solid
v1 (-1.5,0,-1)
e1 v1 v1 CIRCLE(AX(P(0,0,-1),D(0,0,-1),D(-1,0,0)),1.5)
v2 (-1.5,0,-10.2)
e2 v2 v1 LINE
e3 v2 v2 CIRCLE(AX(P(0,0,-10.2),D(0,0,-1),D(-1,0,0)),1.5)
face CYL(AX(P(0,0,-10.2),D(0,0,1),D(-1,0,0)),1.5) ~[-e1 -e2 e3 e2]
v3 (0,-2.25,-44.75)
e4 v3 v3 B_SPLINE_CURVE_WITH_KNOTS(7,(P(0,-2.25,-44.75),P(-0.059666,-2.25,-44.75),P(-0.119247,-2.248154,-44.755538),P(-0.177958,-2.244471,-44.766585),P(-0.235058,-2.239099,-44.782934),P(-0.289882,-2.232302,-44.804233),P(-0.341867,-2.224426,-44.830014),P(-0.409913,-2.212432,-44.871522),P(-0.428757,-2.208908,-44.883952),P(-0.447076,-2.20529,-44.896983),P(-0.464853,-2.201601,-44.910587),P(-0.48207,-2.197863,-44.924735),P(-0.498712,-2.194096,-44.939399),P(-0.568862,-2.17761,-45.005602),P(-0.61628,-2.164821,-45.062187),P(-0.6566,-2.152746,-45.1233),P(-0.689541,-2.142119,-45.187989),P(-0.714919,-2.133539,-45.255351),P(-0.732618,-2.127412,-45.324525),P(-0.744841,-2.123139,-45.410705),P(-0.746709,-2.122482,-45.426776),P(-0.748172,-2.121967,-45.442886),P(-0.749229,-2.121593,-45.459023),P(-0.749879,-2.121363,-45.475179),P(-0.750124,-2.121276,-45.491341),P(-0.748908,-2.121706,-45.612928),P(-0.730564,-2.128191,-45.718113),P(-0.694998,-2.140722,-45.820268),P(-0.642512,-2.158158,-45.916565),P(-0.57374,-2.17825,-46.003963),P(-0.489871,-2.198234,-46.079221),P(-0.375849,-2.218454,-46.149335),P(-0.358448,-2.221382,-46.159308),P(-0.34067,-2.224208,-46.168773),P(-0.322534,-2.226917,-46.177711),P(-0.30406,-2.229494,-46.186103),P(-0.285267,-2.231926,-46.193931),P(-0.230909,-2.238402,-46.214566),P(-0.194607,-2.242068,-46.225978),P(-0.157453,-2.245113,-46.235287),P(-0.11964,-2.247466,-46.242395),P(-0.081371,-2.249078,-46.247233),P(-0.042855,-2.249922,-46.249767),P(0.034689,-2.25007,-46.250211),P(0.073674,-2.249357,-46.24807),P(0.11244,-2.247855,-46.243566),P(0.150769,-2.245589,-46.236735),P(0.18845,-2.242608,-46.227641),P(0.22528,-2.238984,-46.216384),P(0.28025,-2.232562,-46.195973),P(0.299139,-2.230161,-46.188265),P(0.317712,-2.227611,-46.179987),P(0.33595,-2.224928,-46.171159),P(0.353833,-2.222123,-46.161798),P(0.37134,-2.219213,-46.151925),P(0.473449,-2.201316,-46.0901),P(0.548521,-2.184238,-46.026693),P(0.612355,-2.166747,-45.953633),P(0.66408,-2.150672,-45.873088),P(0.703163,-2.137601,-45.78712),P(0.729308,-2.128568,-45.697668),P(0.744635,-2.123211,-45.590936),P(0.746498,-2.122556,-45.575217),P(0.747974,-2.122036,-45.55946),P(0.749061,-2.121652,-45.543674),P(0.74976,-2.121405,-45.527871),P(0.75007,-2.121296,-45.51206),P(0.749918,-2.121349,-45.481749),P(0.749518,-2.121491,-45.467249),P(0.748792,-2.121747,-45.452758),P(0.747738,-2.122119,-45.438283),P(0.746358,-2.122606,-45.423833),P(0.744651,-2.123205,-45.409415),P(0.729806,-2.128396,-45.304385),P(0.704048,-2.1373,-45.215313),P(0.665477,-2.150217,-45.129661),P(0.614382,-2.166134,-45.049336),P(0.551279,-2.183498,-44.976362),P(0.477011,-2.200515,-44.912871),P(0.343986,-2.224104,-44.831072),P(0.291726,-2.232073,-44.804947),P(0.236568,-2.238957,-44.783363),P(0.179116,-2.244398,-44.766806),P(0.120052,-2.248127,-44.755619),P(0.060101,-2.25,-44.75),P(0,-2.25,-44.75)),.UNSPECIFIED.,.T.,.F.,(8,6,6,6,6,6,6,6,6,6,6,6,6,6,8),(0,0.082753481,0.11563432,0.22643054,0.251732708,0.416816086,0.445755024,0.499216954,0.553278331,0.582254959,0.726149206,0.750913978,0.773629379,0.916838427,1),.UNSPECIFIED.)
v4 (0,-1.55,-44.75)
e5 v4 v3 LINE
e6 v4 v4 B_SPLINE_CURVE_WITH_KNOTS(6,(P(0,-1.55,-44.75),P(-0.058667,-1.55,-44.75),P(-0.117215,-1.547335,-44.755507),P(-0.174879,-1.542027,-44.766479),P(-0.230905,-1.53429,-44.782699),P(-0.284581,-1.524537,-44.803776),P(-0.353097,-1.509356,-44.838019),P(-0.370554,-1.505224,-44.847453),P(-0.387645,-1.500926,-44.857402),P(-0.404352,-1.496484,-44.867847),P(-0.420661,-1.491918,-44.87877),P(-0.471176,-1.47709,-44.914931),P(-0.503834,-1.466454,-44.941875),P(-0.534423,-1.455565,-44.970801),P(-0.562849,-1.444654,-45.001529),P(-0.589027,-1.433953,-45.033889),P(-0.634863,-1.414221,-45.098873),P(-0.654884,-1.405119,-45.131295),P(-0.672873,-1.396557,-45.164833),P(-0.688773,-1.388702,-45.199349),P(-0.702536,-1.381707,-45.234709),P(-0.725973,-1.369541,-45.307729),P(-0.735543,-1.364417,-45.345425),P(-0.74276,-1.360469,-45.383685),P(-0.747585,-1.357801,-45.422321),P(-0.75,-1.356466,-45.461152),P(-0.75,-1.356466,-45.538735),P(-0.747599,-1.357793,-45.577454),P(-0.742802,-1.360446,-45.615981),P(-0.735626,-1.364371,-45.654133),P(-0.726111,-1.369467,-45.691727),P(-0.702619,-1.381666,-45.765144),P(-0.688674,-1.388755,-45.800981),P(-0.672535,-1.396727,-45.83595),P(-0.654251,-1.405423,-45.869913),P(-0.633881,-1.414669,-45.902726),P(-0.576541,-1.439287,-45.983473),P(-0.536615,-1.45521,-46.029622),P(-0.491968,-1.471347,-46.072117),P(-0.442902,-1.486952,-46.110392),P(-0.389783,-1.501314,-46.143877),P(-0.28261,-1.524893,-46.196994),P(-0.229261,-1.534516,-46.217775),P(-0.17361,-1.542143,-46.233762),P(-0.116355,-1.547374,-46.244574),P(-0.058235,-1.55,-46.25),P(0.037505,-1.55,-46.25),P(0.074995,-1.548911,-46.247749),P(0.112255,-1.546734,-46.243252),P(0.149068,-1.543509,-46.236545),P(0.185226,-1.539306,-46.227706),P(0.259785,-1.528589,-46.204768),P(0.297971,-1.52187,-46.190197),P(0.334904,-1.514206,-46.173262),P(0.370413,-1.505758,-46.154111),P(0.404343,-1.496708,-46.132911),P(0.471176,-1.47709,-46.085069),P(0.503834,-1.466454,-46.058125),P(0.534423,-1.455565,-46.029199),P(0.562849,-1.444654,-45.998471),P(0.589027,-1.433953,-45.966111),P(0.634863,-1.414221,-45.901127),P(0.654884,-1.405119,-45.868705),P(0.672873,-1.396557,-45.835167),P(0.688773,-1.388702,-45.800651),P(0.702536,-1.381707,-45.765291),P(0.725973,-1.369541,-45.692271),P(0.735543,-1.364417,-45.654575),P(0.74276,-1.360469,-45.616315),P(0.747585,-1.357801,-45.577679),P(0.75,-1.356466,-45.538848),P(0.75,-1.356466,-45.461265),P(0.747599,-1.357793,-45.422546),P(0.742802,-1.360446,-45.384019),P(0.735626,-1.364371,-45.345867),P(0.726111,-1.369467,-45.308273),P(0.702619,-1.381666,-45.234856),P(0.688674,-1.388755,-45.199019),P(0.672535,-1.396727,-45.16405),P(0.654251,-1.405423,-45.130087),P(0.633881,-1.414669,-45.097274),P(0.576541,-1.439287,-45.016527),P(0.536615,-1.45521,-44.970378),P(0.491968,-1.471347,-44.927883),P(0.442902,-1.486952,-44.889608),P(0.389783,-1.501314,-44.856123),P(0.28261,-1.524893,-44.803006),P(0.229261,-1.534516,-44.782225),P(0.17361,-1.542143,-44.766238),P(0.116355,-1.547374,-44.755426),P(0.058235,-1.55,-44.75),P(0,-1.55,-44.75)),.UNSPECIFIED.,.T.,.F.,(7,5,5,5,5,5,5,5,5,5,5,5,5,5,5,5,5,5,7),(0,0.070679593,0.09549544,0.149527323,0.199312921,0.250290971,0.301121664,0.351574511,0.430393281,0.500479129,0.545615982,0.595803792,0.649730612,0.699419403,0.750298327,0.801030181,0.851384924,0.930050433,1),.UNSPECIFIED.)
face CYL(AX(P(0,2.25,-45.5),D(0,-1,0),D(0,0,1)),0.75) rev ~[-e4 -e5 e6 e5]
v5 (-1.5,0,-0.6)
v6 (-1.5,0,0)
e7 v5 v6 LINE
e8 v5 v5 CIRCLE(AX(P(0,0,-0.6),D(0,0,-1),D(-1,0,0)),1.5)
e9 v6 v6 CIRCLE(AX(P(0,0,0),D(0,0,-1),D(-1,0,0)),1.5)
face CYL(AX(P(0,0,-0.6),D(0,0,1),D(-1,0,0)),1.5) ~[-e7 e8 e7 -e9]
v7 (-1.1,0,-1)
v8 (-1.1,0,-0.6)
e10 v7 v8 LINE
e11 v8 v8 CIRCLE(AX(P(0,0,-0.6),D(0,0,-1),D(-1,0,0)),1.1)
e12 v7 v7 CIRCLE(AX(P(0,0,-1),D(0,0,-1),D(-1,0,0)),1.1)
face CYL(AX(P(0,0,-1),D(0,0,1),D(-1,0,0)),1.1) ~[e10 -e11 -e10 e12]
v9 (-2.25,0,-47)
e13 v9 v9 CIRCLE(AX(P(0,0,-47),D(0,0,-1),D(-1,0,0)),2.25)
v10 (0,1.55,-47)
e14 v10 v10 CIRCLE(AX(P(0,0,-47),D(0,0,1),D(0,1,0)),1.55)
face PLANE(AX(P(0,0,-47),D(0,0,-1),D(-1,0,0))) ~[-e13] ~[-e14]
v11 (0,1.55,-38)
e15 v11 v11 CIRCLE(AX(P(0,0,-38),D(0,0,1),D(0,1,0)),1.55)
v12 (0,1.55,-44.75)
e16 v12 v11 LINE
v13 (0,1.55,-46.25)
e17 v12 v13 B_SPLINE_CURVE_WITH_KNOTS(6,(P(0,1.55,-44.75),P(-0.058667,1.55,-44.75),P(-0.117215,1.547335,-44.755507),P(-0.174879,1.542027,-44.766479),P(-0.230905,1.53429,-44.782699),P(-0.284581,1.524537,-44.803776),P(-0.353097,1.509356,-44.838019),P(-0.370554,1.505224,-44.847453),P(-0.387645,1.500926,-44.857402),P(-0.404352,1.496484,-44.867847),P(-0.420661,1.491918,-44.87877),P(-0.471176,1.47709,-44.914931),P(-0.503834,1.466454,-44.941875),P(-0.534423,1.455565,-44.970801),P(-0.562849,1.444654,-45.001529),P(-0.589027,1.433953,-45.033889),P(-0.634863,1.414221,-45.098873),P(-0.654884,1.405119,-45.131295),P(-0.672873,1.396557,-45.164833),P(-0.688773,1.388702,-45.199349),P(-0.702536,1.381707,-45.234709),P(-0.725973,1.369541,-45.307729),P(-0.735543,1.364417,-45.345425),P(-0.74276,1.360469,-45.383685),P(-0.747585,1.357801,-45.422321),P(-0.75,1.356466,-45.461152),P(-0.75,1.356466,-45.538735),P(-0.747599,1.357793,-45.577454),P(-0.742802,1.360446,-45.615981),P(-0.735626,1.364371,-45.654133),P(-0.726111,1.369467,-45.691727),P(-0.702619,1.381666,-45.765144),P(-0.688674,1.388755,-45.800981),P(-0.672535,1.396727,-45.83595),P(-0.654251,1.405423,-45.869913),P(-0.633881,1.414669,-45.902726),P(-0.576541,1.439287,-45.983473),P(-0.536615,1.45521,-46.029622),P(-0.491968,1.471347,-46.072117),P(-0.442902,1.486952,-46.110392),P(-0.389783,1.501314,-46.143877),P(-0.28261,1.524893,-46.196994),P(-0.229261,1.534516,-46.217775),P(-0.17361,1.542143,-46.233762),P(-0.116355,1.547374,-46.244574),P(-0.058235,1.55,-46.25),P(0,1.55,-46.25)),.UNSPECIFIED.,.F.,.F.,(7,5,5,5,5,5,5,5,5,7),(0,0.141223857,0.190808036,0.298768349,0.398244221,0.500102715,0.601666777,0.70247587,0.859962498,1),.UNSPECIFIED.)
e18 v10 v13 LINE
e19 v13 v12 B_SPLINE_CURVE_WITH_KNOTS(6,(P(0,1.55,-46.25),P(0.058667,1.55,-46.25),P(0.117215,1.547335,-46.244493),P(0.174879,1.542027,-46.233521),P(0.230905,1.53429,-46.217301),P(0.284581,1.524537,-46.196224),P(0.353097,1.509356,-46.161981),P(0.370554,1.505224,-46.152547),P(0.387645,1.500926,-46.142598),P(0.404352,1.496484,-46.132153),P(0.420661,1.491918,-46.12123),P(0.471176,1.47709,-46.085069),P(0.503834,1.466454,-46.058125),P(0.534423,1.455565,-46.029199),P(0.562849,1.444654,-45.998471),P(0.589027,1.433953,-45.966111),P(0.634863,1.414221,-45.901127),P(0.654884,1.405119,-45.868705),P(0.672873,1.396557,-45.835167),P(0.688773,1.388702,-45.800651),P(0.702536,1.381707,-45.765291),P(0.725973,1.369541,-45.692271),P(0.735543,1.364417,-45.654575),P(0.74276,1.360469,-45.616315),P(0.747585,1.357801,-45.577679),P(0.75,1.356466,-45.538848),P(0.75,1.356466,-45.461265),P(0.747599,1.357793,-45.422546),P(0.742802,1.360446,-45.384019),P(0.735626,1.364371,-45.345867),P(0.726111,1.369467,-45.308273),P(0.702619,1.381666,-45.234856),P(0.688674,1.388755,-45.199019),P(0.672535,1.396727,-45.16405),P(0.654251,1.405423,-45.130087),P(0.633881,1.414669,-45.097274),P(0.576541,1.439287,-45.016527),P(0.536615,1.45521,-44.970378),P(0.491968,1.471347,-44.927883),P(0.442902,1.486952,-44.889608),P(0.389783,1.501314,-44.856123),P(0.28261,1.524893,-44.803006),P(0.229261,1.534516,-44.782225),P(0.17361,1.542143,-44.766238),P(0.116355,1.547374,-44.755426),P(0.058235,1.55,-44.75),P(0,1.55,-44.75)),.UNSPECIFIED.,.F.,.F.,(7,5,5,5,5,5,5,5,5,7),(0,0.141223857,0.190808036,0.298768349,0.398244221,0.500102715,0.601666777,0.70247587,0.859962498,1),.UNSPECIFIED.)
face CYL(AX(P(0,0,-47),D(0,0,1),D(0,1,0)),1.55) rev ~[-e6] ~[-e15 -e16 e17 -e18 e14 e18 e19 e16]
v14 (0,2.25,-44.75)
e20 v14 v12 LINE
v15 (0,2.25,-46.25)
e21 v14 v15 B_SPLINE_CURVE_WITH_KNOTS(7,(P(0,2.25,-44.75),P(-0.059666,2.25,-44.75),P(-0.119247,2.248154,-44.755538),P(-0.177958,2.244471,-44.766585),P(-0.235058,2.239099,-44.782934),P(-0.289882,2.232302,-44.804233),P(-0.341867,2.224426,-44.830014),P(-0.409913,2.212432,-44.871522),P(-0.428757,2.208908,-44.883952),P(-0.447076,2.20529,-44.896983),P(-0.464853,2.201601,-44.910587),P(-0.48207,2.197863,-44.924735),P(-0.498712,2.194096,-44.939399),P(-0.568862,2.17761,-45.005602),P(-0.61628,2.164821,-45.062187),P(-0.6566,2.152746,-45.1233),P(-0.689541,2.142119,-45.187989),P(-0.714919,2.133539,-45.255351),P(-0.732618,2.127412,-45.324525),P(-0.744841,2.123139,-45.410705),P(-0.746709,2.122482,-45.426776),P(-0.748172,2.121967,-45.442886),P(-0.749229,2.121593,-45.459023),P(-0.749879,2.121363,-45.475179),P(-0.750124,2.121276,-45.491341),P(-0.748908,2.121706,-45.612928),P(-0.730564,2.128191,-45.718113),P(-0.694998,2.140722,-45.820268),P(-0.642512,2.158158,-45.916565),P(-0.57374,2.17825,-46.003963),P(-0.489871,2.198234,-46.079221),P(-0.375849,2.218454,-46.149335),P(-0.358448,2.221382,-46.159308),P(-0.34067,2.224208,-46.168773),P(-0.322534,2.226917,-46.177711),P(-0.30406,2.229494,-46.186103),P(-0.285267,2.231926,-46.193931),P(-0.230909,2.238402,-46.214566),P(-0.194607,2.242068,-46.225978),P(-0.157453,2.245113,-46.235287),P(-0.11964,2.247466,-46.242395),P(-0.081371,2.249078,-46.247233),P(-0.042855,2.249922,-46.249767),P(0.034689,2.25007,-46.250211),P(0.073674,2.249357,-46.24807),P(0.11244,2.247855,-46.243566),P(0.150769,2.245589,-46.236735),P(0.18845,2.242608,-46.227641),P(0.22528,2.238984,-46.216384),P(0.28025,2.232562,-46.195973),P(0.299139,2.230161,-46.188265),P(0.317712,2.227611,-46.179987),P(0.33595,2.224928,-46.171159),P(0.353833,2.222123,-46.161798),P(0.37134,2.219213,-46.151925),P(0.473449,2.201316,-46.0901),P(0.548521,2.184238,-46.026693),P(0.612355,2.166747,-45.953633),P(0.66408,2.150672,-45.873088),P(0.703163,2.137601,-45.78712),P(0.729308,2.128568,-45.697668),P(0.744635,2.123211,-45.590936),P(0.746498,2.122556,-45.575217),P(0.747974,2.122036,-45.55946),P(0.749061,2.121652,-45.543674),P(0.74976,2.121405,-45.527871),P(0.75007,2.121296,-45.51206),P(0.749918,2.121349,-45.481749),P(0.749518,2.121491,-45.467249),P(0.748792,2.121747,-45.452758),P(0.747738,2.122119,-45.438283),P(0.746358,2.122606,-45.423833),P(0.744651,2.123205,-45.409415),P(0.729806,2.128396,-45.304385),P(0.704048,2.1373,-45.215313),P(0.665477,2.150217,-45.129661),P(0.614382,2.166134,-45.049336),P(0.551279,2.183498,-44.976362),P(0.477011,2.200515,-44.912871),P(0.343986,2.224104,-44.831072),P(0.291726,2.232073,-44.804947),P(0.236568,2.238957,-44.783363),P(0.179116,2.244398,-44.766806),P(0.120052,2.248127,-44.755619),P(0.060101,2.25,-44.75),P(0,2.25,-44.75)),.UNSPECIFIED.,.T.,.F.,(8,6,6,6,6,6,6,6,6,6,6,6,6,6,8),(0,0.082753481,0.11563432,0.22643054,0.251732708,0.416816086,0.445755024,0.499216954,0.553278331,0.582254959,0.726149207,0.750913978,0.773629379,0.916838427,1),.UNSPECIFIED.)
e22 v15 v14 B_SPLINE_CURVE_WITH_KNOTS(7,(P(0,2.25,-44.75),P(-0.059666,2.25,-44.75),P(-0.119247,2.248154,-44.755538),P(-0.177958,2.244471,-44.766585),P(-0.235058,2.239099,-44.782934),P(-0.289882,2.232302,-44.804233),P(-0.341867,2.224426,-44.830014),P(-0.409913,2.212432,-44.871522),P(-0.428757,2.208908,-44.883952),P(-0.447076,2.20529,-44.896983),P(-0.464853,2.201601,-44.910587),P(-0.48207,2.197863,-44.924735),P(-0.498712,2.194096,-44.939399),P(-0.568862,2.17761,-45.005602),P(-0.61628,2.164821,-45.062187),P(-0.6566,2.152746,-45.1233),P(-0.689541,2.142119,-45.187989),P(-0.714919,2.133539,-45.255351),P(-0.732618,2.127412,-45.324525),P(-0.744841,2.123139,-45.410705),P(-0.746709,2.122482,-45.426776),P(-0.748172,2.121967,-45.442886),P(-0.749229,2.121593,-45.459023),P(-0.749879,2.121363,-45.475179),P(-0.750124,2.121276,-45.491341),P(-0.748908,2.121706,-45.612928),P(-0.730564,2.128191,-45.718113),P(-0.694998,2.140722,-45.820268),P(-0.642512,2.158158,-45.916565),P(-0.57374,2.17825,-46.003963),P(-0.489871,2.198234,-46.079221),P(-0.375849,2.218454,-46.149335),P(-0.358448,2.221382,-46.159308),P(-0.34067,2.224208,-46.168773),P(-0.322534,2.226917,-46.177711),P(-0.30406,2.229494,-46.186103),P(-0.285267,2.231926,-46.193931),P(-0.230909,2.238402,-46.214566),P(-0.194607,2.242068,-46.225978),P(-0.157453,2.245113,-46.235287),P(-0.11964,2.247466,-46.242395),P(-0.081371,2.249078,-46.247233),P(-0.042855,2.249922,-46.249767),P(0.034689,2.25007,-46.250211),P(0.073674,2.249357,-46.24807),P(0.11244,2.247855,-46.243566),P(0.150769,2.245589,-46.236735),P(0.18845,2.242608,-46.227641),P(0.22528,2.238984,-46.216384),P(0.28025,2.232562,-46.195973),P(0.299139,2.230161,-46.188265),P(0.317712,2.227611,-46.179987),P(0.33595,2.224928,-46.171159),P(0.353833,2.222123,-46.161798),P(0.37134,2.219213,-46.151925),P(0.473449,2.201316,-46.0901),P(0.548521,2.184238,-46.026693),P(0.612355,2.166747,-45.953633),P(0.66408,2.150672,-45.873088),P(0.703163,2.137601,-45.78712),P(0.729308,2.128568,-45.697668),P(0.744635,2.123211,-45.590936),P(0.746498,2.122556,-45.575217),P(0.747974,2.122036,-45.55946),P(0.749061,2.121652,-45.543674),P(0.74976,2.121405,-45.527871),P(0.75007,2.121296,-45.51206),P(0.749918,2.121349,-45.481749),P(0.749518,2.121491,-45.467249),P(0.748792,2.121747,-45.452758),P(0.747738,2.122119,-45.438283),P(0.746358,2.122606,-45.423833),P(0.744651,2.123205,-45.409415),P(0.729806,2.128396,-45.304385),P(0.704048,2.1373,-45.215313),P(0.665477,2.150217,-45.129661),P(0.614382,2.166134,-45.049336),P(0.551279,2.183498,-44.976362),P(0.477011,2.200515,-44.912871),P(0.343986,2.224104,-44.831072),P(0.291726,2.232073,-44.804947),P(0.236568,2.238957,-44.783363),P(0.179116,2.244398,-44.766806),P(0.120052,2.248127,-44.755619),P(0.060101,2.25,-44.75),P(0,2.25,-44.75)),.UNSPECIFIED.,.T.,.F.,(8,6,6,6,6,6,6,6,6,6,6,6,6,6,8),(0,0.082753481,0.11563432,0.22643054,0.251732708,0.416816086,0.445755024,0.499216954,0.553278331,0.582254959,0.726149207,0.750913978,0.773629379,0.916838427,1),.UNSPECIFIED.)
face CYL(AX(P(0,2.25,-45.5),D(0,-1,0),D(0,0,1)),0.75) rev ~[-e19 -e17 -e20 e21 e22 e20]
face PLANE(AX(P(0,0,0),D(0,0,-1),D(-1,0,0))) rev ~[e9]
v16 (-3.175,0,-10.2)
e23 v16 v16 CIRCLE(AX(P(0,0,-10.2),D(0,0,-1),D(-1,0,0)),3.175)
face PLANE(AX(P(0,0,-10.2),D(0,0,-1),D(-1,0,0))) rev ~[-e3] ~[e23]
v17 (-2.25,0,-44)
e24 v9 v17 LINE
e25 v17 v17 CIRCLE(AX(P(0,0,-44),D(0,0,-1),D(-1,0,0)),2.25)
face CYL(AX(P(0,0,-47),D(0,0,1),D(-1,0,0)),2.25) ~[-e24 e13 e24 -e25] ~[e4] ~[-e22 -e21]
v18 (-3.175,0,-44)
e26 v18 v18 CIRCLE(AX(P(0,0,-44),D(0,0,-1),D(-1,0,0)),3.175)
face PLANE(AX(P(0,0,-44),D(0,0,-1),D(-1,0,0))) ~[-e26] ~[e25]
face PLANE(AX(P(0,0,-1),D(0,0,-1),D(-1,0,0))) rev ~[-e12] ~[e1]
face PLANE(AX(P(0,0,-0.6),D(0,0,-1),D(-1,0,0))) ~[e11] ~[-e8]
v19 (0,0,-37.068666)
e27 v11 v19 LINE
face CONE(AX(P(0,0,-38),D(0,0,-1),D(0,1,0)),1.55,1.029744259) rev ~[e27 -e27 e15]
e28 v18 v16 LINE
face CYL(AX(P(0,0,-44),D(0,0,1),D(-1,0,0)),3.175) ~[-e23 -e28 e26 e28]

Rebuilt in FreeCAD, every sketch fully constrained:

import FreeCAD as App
import Part
import Sketcher
from FreeCAD import Vector
Q = App.Units.Quantity

doc = App.newDocument("Part")
body = doc.addObject("PartDesign::Body", "Body")

sketch1 = doc.addObject("Sketcher::SketchObject", "Sketch")
body.addObject(sketch1)
sketch1.AttachmentSupport = (doc.XZ_Plane, [""])
sketch1.MapMode = "FlatFace"
sketch1.addGeometry(Part.LineSegment(Vector(-1.5, 0, 0), Vector(0, 0, 0)), False)
sketch1.addGeometry(Part.LineSegment(Vector(0, 0, 0), Vector(0, -47, 0)), False)
sketch1.addGeometry(Part.LineSegment(Vector(0, -47, 0), Vector(-2.25, -47, 0)), False)
sketch1.addGeometry(Part.LineSegment(Vector(-2.25, -47, 0), Vector(-2.25, -44, 0)), False)
sketch1.addGeometry(Part.LineSegment(Vector(-2.25, -44, 0), Vector(-3.17, -44, 0)), False)
sketch1.addGeometry(Part.LineSegment(Vector(-3.17, -44, 0), Vector(-3.17, -10.2, 0)), False)
sketch1.addGeometry(Part.LineSegment(Vector(-3.17, -10.2, 0), Vector(-1.5, -10.2, 0)), False)
sketch1.addGeometry(Part.LineSegment(Vector(-1.5, -10.2, 0), Vector(-1.5, -1, 0)), False)
sketch1.addGeometry(Part.LineSegment(Vector(-1.5, -1, 0), Vector(-1.1, -1, 0)), False)
sketch1.addGeometry(Part.LineSegment(Vector(-1.1, -1, 0), Vector(-1.1, -0.6, 0)), False)
sketch1.addGeometry(Part.LineSegment(Vector(-1.1, -0.6, 0), Vector(-1.5, -0.6, 0)), False)
sketch1.addGeometry(Part.LineSegment(Vector(-1.5, -0.6, 0), Vector(-1.5, 0, 0)), False)
sketch1.addConstraint(Sketcher.Constraint("Coincident", 0, 2, 1, 1))
sketch1.addConstraint(Sketcher.Constraint("Coincident", 1, 2, 2, 1))
sketch1.addConstraint(Sketcher.Constraint("Coincident", 2, 2, 3, 1))
sketch1.addConstraint(Sketcher.Constraint("Coincident", 3, 2, 4, 1))
sketch1.addConstraint(Sketcher.Constraint("Coincident", 4, 2, 5, 1))
sketch1.addConstraint(Sketcher.Constraint("Coincident", 5, 2, 6, 1))
sketch1.addConstraint(Sketcher.Constraint("Coincident", 6, 2, 7, 1))
sketch1.addConstraint(Sketcher.Constraint("Coincident", 7, 2, 8, 1))
sketch1.addConstraint(Sketcher.Constraint("Coincident", 8, 2, 9, 1))
sketch1.addConstraint(Sketcher.Constraint("Coincident", 9, 2, 10, 1))
sketch1.addConstraint(Sketcher.Constraint("Coincident", 10, 2, 11, 1))
sketch1.addConstraint(Sketcher.Constraint("Coincident", 11, 2, 0, 1))
sketch1.addConstraint(Sketcher.Constraint("Horizontal", 0))
sketch1.addConstraint(Sketcher.Constraint("Vertical", 1))
sketch1.addConstraint(Sketcher.Constraint("Horizontal", 2))
sketch1.addConstraint(Sketcher.Constraint("Vertical", 3))
sketch1.addConstraint(Sketcher.Constraint("Horizontal", 4))
sketch1.addConstraint(Sketcher.Constraint("Vertical", 5))
sketch1.addConstraint(Sketcher.Constraint("Horizontal", 6))
sketch1.addConstraint(Sketcher.Constraint("Vertical", 7))
sketch1.addConstraint(Sketcher.Constraint("Horizontal", 8))
sketch1.addConstraint(Sketcher.Constraint("Vertical", 9))
sketch1.addConstraint(Sketcher.Constraint("Horizontal", 10))
sketch1.addConstraint(Sketcher.Constraint("Vertical", 11))
sketch1.addConstraint(Sketcher.Constraint("Coincident", 0, 2, -1, 1))
sketch1.addConstraint(Sketcher.Constraint("Vertical", 7, 2, 10, 2))
sketch1.addConstraint(Sketcher.Constraint("Equal", 10, 9))
sketch1.addConstraint(Sketcher.Constraint("DistanceY", 3, 1, 3, 2, Q("3 mm")))
sketch1.addConstraint(Sketcher.Constraint("DistanceX", 8, 1, 8, 2, Q("0.4 mm")))
sketch1.addConstraint(Sketcher.Constraint("DistanceY", 5, 1, 5, 2, Q("33.8 mm")))
sketch1.addConstraint(Sketcher.Constraint("DistanceY", 7, 2, -1, 1, Q("1 mm")))
sketch1.addConstraint(Sketcher.Constraint("DistanceY", 5, 2, -1, 1, Q("10.2 mm")))
sketch1.addConstraint(Sketcher.Constraint("DistanceX", 0, 1, 0, 2, Q("1.5 mm")))
sketch1.addConstraint(Sketcher.Constraint("DistanceX", 2, 2, 2, 1, Q("2.25 mm")))
sketch1.addConstraint(Sketcher.Constraint("DistanceX", 4, 2, 4, 1, Q("0.925 mm")))
revolution = doc.addObject("PartDesign::Revolution", "Revolution")
body.addObject(revolution)
revolution.Profile = sketch1
revolution.ReferenceAxis = (sketch1, ["V_Axis"])
revolution.Angle = 360

sketch2 = doc.addObject("Sketcher::SketchObject", "Sketch001")
body.addObject(sketch2)
sketch2.AttachmentSupport = (doc.XZ_Plane, [""])
sketch2.MapMode = "FlatFace"
sketch2.AttachmentOffset = App.Placement(Vector(0, 0, -2.25), App.Rotation())
sketch2.addGeometry(Part.Circle(Vector(0, -45.5, 0), Vector(0, 0, 1), 0.8), False)
sketch2.addConstraint(Sketcher.Constraint("PointOnObject", 0, 3, -2))
sketch2.addConstraint(Sketcher.Constraint("Diameter", 0, Q("1.5 mm")))
sketch2.addConstraint(Sketcher.Constraint("DistanceY", 0, 3, -1, 1, Q("45.5 mm")))
doc.recompute()
hole = doc.addObject("PartDesign::Hole", "Hole")
body.addObject(hole)
hole.Profile = sketch2
hole.ThreadType = "None"
hole.Diameter = 1.5
hole.DepthType = "ThroughAll"
hole.Reversed = True

sketch3 = doc.addObject("Sketcher::SketchObject", "Sketch002")
body.addObject(sketch3)
sketch3.AttachmentSupport = (doc.XY_Plane, [""])
sketch3.MapMode = "FlatFace"
sketch3.AttachmentOffset = App.Placement(Vector(0, 0, -47), App.Rotation())
sketch3.addGeometry(Part.Circle(Vector(0, 0, 0), Vector(0, 0, 1), 1.6), False)
sketch3.addConstraint(Sketcher.Constraint("Coincident", 0, 3, -1, 1))
sketch3.addConstraint(Sketcher.Constraint("Diameter", 0, Q("3.1 mm")))
doc.recompute()
hole2 = doc.addObject("PartDesign::Hole", "Hole001")
body.addObject(hole2)
hole2.Profile = sketch3
hole2.ThreadType = "None"
hole2.Diameter = 3.1
hole2.DepthType = "Dimension"
hole2.Depth = 9
hole2.DrillPoint = "Angled"
hole2.DrillPointAngle = 118
hole2.Reversed = True

doc.recompute()
